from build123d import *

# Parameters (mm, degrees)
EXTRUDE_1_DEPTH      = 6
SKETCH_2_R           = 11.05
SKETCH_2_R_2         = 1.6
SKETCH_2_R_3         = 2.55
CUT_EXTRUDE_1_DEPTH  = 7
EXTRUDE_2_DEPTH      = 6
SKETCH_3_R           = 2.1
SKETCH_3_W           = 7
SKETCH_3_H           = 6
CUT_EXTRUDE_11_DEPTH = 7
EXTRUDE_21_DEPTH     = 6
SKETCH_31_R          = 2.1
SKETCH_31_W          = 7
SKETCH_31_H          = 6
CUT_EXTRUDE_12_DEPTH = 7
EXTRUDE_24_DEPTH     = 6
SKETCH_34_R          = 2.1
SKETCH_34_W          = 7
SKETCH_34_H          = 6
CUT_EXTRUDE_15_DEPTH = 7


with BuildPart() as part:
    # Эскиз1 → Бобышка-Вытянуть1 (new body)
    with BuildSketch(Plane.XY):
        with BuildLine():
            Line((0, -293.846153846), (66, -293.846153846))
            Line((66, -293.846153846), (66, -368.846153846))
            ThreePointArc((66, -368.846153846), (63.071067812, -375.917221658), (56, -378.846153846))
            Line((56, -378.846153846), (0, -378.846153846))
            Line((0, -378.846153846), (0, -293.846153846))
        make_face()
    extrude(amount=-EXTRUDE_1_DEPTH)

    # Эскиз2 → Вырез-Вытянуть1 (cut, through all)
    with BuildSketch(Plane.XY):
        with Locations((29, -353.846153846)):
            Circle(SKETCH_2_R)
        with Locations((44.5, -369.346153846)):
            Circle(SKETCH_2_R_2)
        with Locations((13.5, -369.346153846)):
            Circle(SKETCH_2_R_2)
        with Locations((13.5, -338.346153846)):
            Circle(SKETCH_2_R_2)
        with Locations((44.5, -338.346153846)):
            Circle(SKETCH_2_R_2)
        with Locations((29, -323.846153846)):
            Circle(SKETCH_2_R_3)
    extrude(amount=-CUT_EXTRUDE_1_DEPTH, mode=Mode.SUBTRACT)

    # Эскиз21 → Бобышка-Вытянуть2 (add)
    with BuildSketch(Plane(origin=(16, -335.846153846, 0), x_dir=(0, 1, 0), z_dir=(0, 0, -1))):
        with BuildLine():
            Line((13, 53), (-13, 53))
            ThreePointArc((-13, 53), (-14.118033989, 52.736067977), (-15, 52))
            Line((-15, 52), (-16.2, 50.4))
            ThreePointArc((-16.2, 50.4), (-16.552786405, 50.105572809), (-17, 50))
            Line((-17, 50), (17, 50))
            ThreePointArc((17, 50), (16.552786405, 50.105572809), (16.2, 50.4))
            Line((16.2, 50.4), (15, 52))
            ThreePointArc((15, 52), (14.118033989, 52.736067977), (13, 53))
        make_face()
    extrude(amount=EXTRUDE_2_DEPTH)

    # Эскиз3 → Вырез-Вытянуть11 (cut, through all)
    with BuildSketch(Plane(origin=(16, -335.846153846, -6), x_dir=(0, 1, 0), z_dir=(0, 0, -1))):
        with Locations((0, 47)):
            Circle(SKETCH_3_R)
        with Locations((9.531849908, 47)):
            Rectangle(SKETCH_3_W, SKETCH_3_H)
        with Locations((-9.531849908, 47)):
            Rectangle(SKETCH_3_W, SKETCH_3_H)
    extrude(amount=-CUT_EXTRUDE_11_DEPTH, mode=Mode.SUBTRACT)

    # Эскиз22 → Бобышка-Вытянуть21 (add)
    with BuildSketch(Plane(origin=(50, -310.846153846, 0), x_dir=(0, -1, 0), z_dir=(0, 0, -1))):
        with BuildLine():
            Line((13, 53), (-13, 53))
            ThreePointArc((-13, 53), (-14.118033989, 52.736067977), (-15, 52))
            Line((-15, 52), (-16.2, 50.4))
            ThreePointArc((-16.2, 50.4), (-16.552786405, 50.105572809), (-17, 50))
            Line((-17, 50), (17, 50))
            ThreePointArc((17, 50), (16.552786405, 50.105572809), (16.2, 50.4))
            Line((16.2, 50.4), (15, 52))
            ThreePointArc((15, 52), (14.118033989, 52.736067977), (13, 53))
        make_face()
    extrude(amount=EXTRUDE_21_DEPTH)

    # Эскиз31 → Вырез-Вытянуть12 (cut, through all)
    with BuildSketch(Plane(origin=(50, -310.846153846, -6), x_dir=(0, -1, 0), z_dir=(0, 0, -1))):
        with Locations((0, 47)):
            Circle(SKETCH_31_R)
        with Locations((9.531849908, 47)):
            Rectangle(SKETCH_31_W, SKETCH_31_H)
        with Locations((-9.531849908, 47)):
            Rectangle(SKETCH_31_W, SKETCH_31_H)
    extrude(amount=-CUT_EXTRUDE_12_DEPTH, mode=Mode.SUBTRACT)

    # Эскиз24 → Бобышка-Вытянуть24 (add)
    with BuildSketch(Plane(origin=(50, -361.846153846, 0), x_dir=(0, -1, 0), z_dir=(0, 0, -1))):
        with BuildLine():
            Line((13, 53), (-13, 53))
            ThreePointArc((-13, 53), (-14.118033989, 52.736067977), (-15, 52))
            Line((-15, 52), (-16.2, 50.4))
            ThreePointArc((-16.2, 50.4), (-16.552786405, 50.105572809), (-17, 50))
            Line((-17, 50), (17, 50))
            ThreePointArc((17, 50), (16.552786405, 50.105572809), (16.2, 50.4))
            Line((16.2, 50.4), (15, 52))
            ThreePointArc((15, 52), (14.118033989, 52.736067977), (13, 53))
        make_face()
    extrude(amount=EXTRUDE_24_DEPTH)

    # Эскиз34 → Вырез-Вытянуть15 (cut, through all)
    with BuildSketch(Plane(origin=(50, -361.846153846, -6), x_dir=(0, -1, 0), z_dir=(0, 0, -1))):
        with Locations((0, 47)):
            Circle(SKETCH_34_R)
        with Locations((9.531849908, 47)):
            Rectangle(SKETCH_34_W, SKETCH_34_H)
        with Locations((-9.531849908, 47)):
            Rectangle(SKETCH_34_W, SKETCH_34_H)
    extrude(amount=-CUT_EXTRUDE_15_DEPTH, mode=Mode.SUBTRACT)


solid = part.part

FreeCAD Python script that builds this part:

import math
import FreeCAD as App
import Part
import Sketcher

V = App.Vector

doc = App.newDocument("Part")
body = doc.addObject("PartDesign::Body", "Body")

sketch1 = doc.addObject("Sketcher::SketchObject", "Sketch")
body.addObject(sketch1)
sketch1.AttachmentSupport = (doc.XY_Plane, [""])
sketch1.MapMode = "FlatFace"
sketch1.addGeometry([
    Part.LineSegment(V(66, -294, 0), V(0, -294, 0)),
    Part.LineSegment(V(0, -294, 0), V(0, -379, 0)),
    Part.LineSegment(V(0, -379, 0), V(56, -379, 0)),
    Part.ArcOfCircle(Part.Circle(V(56, -369, 0), V(0, 0, 1), 10), math.radians(-90), math.radians(0)),
    Part.LineSegment(V(66, -369, 0), V(66, -294, 0)),
], False)
sketch1.addConstraint([
    Sketcher.Constraint("Coincident", 0, 2, 1, 1),
    Sketcher.Constraint("Coincident", 1, 2, 2, 1),
    Sketcher.Constraint("Tangent", 2, 2, 3, 1),
    Sketcher.Constraint("Tangent", 3, 2, 4, 1),
    Sketcher.Constraint("Coincident", 4, 2, 0, 1),
    Sketcher.Constraint("Horizontal", 0),
    Sketcher.Constraint("Vertical", 1),
    Sketcher.Constraint("Horizontal", 2),
    Sketcher.Constraint("Vertical", 4),
    Sketcher.Constraint("PointOnObject", 0, 2, -2),
    Sketcher.Constraint("Radius", 3, 10.0),
    Sketcher.Constraint("DistanceX", 0, 2, 0, 1, 66.0),
    Sketcher.Constraint("DistanceY", 1, 2, 1, 1, 85.0),
    Sketcher.Constraint("DistanceY", 3, 3, -1, 1, 368.846154),
])
pad1 = doc.addObject("PartDesign::Pad", "Pad")
body.addObject(pad1)
pad1.Profile = sketch1
pad1.Length = 6
pad1.Reversed = True

sketch2 = doc.addObject("Sketcher::SketchObject", "Sketch001")
body.addObject(sketch2)
sketch2.AttachmentSupport = (doc.XY_Plane, [""])
sketch2.MapMode = "FlatFace"
sketch2.addGeometry([
    Part.Circle(V(29, -353.8, 0), V(0, 0, 1), 11.1),
    Part.Circle(V(44.5, -369.3, 0), V(0, 0, 1), 1.6),
    Part.Circle(V(13.5, -369.3, 0), V(0, 0, 1), 1.6),
    Part.Circle(V(13.5, -338.3, 0), V(0, 0, 1), 1.6),
    Part.Circle(V(44.5, -338.3, 0), V(0, 0, 1), 1.6),
    Part.Circle(V(29, -323.8, 0), V(0, 0, 1), 2.5),
], False)
sketch2.addConstraint([
    Sketcher.Constraint("Equal", 1, 2),
    Sketcher.Constraint("Equal", 2, 3),
    Sketcher.Constraint("Equal", 3, 4),
    Sketcher.Constraint("Horizontal", 1, 3, 2, 3),
    Sketcher.Constraint("Horizontal", 3, 3, 4, 3),
    Sketcher.Constraint("Vertical", 2, 3, 3, 3),
    Sketcher.Constraint("Vertical", 1, 3, 4, 3),
    Sketcher.Constraint("Vertical", 0, 3, 5, 3),
    Sketcher.Constraint("Diameter", 0, 22.1),
    Sketcher.Constraint("Diameter", 1, 3.2),
    Sketcher.Constraint("Diameter", 5, 5.1),
    Sketcher.Constraint("DistanceX", -1, 1, 0, 3, 29.0),
    Sketcher.Constraint("DistanceX", 2, 3, 1, 3, 31.0),
    Sketcher.Constraint("DistanceY", 2, 3, 3, 3, 31.0),
    Sketcher.Constraint("DistanceY", 0, 3, 5, 3, 30.0),
    Sketcher.Constraint("DistanceX", -1, 1, 1, 3, 44.5),
    Sketcher.Constraint("DistanceY", 1, 3, 0, 3, 15.5),
    Sketcher.Constraint("DistanceY", 0, 3, -1, 1, 353.846154),
])
pocket1 = doc.addObject("PartDesign::Pocket", "Pocket")
body.addObject(pocket1)
pocket1.Profile = sketch2
pocket1.Type = "ThroughAll"

sketch3 = doc.addObject("Sketcher::SketchObject", "Sketch002")
body.addObject(sketch3)
sketch3.AttachmentSupport = (doc.XY_Plane, [""])
sketch3.MapMode = "FlatFace"
sketch3.addGeometry([
    Part.LineSegment(V(69, -322.8, 0), V(69, -348.8, 0)),
    Part.ArcOfCircle(Part.Circle(V(66.5, -348.8, 0), V(0, 0, 1), 2.5), math.radians(-53), math.radians(0)),
    Part.LineSegment(V(68, -350.8, 0), V(66.4, -352, 0)),
    Part.ArcOfCircle(Part.Circle(V(67, -352.8, 0), V(0, 0, 1), 1), math.radians(127), math.radians(180)),
    Part.LineSegment(V(66, -352.8, 0), V(66, -318.8, 0)),
    Part.ArcOfCircle(Part.Circle(V(67, -318.8, 0), V(0, 0, 1), 1), math.radians(-180), math.radians(-127)),
    Part.LineSegment(V(66.4, -319.6, 0), V(68, -320.8, 0)),
    Part.ArcOfCircle(Part.Circle(V(66.5, -322.8, 0), V(0, 0, 1), 2.5), math.radians(0), math.radians(53)),
], False)
sketch3.addConstraint([
    Sketcher.Constraint("Tangent", 0, 2, 1, 2),
    Sketcher.Constraint("Tangent", 1, 1, 2, 1),
    Sketcher.Constraint("Tangent", 2, 2, 3, 1),
    Sketcher.Constraint("Tangent", 3, 2, 4, 1),
    Sketcher.Constraint("Tangent", 4, 2, 5, 1),
    Sketcher.Constraint("Tangent", 5, 2, 6, 1),
    Sketcher.Constraint("Tangent", 6, 2, 7, 2),
    Sketcher.Constraint("Tangent", 7, 1, 0, 1),
    Sketcher.Constraint("Vertical", 0),
    Sketcher.Constraint("Vertical", 4),
    Sketcher.Constraint("Equal", 3, 5),
    Sketcher.Constraint("Equal", 1, 7),
    Sketcher.Constraint("Vertical", 2, 2, 5, 2),
    Sketcher.Constraint("Radius", 3, 1.0),
    Sketcher.Constraint("Radius", 1, 2.5),
    Sketcher.Constraint("DistanceY", 0, 2, 0, 1, 26.0),
    Sketcher.Constraint("DistanceY", 4, 1, 4, 2, 34.0),
    Sketcher.Constraint("Distance", 2, 2.0),
    Sketcher.Constraint("DistanceX", -1, 1, 3, 3, 67.0),
    Sketcher.Constraint("DistanceY", 1, 3, -1, 1, 348.846154),
])
pad2 = doc.addObject("PartDesign::Pad", "Pad001")
body.addObject(pad2)
pad2.Profile = sketch3
pad2.Length = 6
pad2.Reversed = True

sketch4 = doc.addObject("Sketcher::SketchObject", "Sketch003")
body.addObject(sketch4)
sketch4.AttachmentSupport = (doc.XY_Plane, [""])
sketch4.MapMode = "FlatFace"
sketch4.AttachmentOffset = App.Placement(V(0, 0, -6), App.Rotation())
sketch4.addGeometry([
    Part.Circle(V(63, -335.8, 0), V(0, 0, 1), 2.1),
    Part.LineSegment(V(66, -329.8, 0), V(60, -329.8, 0)),
    Part.LineSegment(V(60, -329.8, 0), V(60, -322.8, 0)),
    Part.LineSegment(V(60, -322.8, 0), V(66, -322.8, 0)),
    Part.LineSegment(V(66, -322.8, 0), V(66, -329.8, 0)),
    Part.LineSegment(V(66, -348.9, 0), V(60, -348.9, 0)),
    Part.LineSegment(V(60, -348.9, 0), V(60, -341.9, 0)),
    Part.LineSegment(V(60, -341.9, 0), V(66, -341.9, 0)),
    Part.LineSegment(V(66, -341.9, 0), V(66, -348.9, 0)),
], False)
sketch4.addConstraint([
    Sketcher.Constraint("Coincident", 1, 2, 2, 1),
    Sketcher.Constraint("Coincident", 2, 2, 3, 1),
    Sketcher.Constraint("Coincident", 3, 2, 4, 1),
    Sketcher.Constraint("Coincident", 4, 2, 1, 1),
    Sketcher.Constraint("Coincident", 5, 2, 6, 1),
    Sketcher.Constraint("Coincident", 6, 2, 7, 1),
    Sketcher.Constraint("Coincident", 7, 2, 8, 1),
    Sketcher.Constraint("Coincident", 8, 2, 5, 1),
    Sketcher.Constraint("Horizontal", 1),
    Sketcher.Constraint("Vertical", 2),
    Sketcher.Constraint("Horizontal", 3),
    Sketcher.Constraint("Vertical", 4),
    Sketcher.Constraint("Horizontal", 5),
    Sketcher.Constraint("Vertical", 6),
    Sketcher.Constraint("Horizontal", 7),
    Sketcher.Constraint("Vertical", 8),
    Sketcher.Constraint("Vertical", 2, 2, 5, 2),
    Sketcher.Constraint("Vertical", 4, 2, 7, 2),
    Sketcher.Constraint("Equal", 4, 6),
    Sketcher.Constraint("Diameter", 0, 4.2),
    Sketcher.Constraint("DistanceX", 1, 2, 1, 1, 6.0),
    Sketcher.Constraint("DistanceY", 2, 1, 2, 2, 7.0),
    Sketcher.Constraint("DistanceX", -1, 1, 0, 3, 63.0),
    Sketcher.Constraint("DistanceX", -1, 1, 1, 2, 60.0),
    Sketcher.Constraint("DistanceY", 5, 2, 1, 2, 19.0637),
    Sketcher.Constraint("DistanceY", 0, 3, 1, 2, 6.03185),
    Sketcher.Constraint("DistanceY", 0, 3, -1, 1, 335.846154),
])
pocket2 = doc.addObject("PartDesign::Pocket", "Pocket001")
body.addObject(pocket2)
pocket2.Profile = sketch4
pocket2.Type = "ThroughAll"
pocket2.Reversed = True

sketch5 = doc.addObject("Sketcher::SketchObject", "Sketch004")
body.addObject(sketch5)
sketch5.AttachmentSupport = (doc.XY_Plane, [""])
sketch5.MapMode = "FlatFace"
sketch5.addGeometry([
    Part.LineSegment(V(-3, -323.8, 0), V(-3, -297.8, 0)),
    Part.ArcOfCircle(Part.Circle(V(-0.5, -297.8, 0), V(0, 0, 1), 2.5), math.radians(127), math.radians(180)),
    Part.LineSegment(V(-2, -295.8, 0), V(-0.4, -294.6, 0)),
    Part.ArcOfCircle(Part.Circle(V(-1, -293.8, 0), V(0, 0, 1), 1), math.radians(-53), math.radians(0)),
    Part.LineSegment(V(0, -293.8, 0), V(0, -327.8, 0)),
    Part.ArcOfCircle(Part.Circle(V(-1, -327.8, 0), V(0, 0, 1), 1), math.radians(0), math.radians(53)),
    Part.LineSegment(V(-0.4, -327, 0), V(-2, -325.8, 0)),
    Part.ArcOfCircle(Part.Circle(V(-0.5, -323.8, 0), V(0, 0, 1), 2.5), math.radians(-180), math.radians(-127)),
], False)
sketch5.addConstraint([
    Sketcher.Constraint("Tangent", 0, 2, 1, 2),
    Sketcher.Constraint("Tangent", 1, 1, 2, 1),
    Sketcher.Constraint("Tangent", 2, 2, 3, 1),
    Sketcher.Constraint("Tangent", 3, 2, 4, 1),
    Sketcher.Constraint("Tangent", 4, 2, 5, 1),
    Sketcher.Constraint("Tangent", 5, 2, 6, 1),
    Sketcher.Constraint("Tangent", 6, 2, 7, 2),
    Sketcher.Constraint("Tangent", 7, 1, 0, 1),
    Sketcher.Constraint("Vertical", 0),
    Sketcher.Constraint("Vertical", 4),
    Sketcher.Constraint("Equal", 3, 5),
    Sketcher.Constraint("Equal", 1, 7),
    Sketcher.Constraint("PointOnObject", 3, 2, -2),
    Sketcher.Constraint("Vertical", 2, 2, 5, 2),
    Sketcher.Constraint("Radius", 3, 1.0),
    Sketcher.Constraint("Radius", 1, 2.5),
    Sketcher.Constraint("DistanceY", 0, 1, 0, 2, 26.0),
    Sketcher.Constraint("DistanceY", 4, 2, 4, 1, 34.0),
    Sketcher.Constraint("Distance", 2, 2.0),
    Sketcher.Constraint("DistanceY", 1, 3, -1, 1, 297.846154),
])
pad3 = doc.addObject("PartDesign::Pad", "Pad002")
body.addObject(pad3)
pad3.Profile = sketch5
pad3.Length = 6
pad3.Reversed = True

sketch6 = doc.addObject("Sketcher::SketchObject", "Sketch005")
body.addObject(sketch6)
sketch6.AttachmentSupport = (doc.XY_Plane, [""])
sketch6.MapMode = "FlatFace"
sketch6.AttachmentOffset = App.Placement(V(0, 0, -6), App.Rotation())
sketch6.addGeometry([
    Part.Circle(V(3, -310.8, 0), V(0, 0, 1), 2.1),
    Part.LineSegment(V(0, -316.9, 0), V(6, -316.9, 0)),
    Part.LineSegment(V(6, -316.9, 0), V(6, -323.9, 0)),
    Part.LineSegment(V(6, -323.9, 0), V(0, -323.9, 0)),
    Part.LineSegment(V(0, -323.9, 0), V(0, -316.9, 0)),
    Part.LineSegment(V(0, -297.8, 0), V(6, -297.8, 0)),
    Part.LineSegment(V(6, -297.8, 0), V(6, -304.8, 0)),
    Part.LineSegment(V(6, -304.8, 0), V(0, -304.8, 0)),
    Part.LineSegment(V(0, -304.8, 0), V(0, -297.8, 0)),
], False)
sketch6.addConstraint([
    Sketcher.Constraint("Coincident", 1, 2, 2, 1),
    Sketcher.Constraint("Coincident", 2, 2, 3, 1),
    Sketcher.Constraint("Coincident", 3, 2, 4, 1),
    Sketcher.Constraint("Coincident", 4, 2, 1, 1),
    Sketcher.Constraint("Coincident", 5, 2, 6, 1),
    Sketcher.Constraint("Coincident", 6, 2, 7, 1),
    Sketcher.Constraint("Coincident", 7, 2, 8, 1),
    Sketcher.Constraint("Coincident", 8, 2, 5, 1),
    Sketcher.Constraint("Horizontal", 1),
    Sketcher.Constraint("Vertical", 2),
    Sketcher.Constraint("Horizontal", 3),
    Sketcher.Constraint("Vertical", 4),
    Sketcher.Constraint("Horizontal", 5),
    Sketcher.Constraint("Vertical", 6),
    Sketcher.Constraint("Horizontal", 7),
    Sketcher.Constraint("Vertical", 8),
    Sketcher.Constraint("PointOnObject", 3, 2, -2),
    Sketcher.Constraint("PointOnObject", 7, 2, -2),
    Sketcher.Constraint("Vertical", 2, 2, 5, 2),
    Sketcher.Constraint("Equal", 4, 6),
    Sketcher.Constraint("Diameter", 0, 4.2),
    Sketcher.Constraint("DistanceX", 1, 1, 1, 2, 6.0),
    Sketcher.Constraint("DistanceY", 2, 2, 2, 1, 7.0),
    Sketcher.Constraint("DistanceX", -1, 1, 0, 3, 3.0),
    Sketcher.Constraint("DistanceY", 1, 2, 5, 2, 19.0637),
    Sketcher.Constraint("DistanceY", 1, 2, 0, 3, 6.03185),
    Sketcher.Constraint("DistanceY", 0, 3, -1, 1, 310.846154),
])
pocket3 = doc.addObject("PartDesign::Pocket", "Pocket002")
body.addObject(pocket3)
pocket3.Profile = sketch6
pocket3.Type = "ThroughAll"
pocket3.Reversed = True

sketch7 = doc.addObject("Sketcher::SketchObject", "Sketch006")
body.addObject(sketch7)
sketch7.AttachmentSupport = (doc.XY_Plane, [""])
sketch7.MapMode = "FlatFace"
sketch7.addGeometry([
    Part.LineSegment(V(-3, -374.8, 0), V(-3, -348.8, 0)),
    Part.ArcOfCircle(Part.Circle(V(-0.5, -348.8, 0), V(0, 0, 1), 2.5), math.radians(127), math.radians(180)),
    Part.LineSegment(V(-2, -346.8, 0), V(-0.4, -345.6, 0)),
    Part.ArcOfCircle(Part.Circle(V(-1, -344.8, 0), V(0, 0, 1), 1), math.radians(-53), math.radians(0)),
    Part.LineSegment(V(0, -344.8, 0), V(0, -378.8, 0)),
    Part.ArcOfCircle(Part.Circle(V(-1, -378.8, 0), V(0, 0, 1), 1), math.radians(0), math.radians(53)),
    Part.LineSegment(V(-0.4, -378, 0), V(-2, -376.8, 0)),
    Part.ArcOfCircle(Part.Circle(V(-0.5, -374.8, 0), V(0, 0, 1), 2.5), math.radians(-180), math.radians(-127)),
], False)
sketch7.addConstraint([
    Sketcher.Constraint("Tangent", 0, 2, 1, 2),
    Sketcher.Constraint("Tangent", 1, 1, 2, 1),
    Sketcher.Constraint("Tangent", 2, 2, 3, 1),
    Sketcher.Constraint("Tangent", 3, 2, 4, 1),
    Sketcher.Constraint("Tangent", 4, 2, 5, 1),
    Sketcher.Constraint("Tangent", 5, 2, 6, 1),
    Sketcher.Constraint("Tangent", 6, 2, 7, 2),
    Sketcher.Constraint("Tangent", 7, 1, 0, 1),
    Sketcher.Constraint("Vertical", 0),
    Sketcher.Constraint("Vertical", 4),
    Sketcher.Constraint("Equal", 3, 5),
    Sketcher.Constraint("Equal", 1, 7),
    Sketcher.Constraint("PointOnObject", 3, 2, -2),
    Sketcher.Constraint("Vertical", 2, 2, 5, 2),
    Sketcher.Constraint("Radius", 3, 1.0),
    Sketcher.Constraint("Radius", 1, 2.5),
    Sketcher.Constraint("DistanceY", 0, 1, 0, 2, 26.0),
    Sketcher.Constraint("DistanceY", 4, 2, 4, 1, 34.0),
    Sketcher.Constraint("Distance", 2, 2.0),
    Sketcher.Constraint("DistanceY", 1, 3, -1, 1, 348.846154),
])
pad4 = doc.addObject("PartDesign::Pad", "Pad003")
body.addObject(pad4)
pad4.Profile = sketch7
pad4.Length = 6
pad4.Reversed = True

sketch8 = doc.addObject("Sketcher::SketchObject", "Sketch007")
body.addObject(sketch8)
sketch8.AttachmentSupport = (doc.XY_Plane, [""])
sketch8.MapMode = "FlatFace"
sketch8.AttachmentOffset = App.Placement(V(0, 0, -6), App.Rotation())
sketch8.addGeometry([
    Part.Circle(V(3, -361.8, 0), V(0, 0, 1), 2.1),
    Part.LineSegment(V(0, -367.9, 0), V(6, -367.9, 0)),
    Part.LineSegment(V(6, -367.9, 0), V(6, -374.9, 0)),
    Part.LineSegment(V(6, -374.9, 0), V(0, -374.9, 0)),
    Part.LineSegment(V(0, -374.9, 0), V(0, -367.9, 0)),
    Part.LineSegment(V(0, -348.8, 0), V(6, -348.8, 0)),
    Part.LineSegment(V(6, -348.8, 0), V(6, -355.8, 0)),
    Part.LineSegment(V(6, -355.8, 0), V(0, -355.8, 0)),
    Part.LineSegment(V(0, -355.8, 0), V(0, -348.8, 0)),
], False)
sketch8.addConstraint([
    Sketcher.Constraint("Coincident", 1, 2, 2, 1),
    Sketcher.Constraint("Coincident", 2, 2, 3, 1),
    Sketcher.Constraint("Coincident", 3, 2, 4, 1),
    Sketcher.Constraint("Coincident", 4, 2, 1, 1),
    Sketcher.Constraint("Coincident", 5, 2, 6, 1),
    Sketcher.Constraint("Coincident", 6, 2, 7, 1),
    Sketcher.Constraint("Coincident", 7, 2, 8, 1),
    Sketcher.Constraint("Coincident", 8, 2, 5, 1),
    Sketcher.Constraint("Horizontal", 1),
    Sketcher.Constraint("Vertical", 2),
    Sketcher.Constraint("Horizontal", 3),
    Sketcher.Constraint("Vertical", 4),
    Sketcher.Constraint("Horizontal", 5),
    Sketcher.Constraint("Vertical", 6),
    Sketcher.Constraint("Horizontal", 7),
    Sketcher.Constraint("Vertical", 8),
    Sketcher.Constraint("PointOnObject", 3, 2, -2),
    Sketcher.Constraint("PointOnObject", 7, 2, -2),
    Sketcher.Constraint("Vertical", 2, 2, 5, 2),
    Sketcher.Constraint("Equal", 4, 6),
    Sketcher.Constraint("Diameter", 0, 4.2),
    Sketcher.Constraint("DistanceX", 1, 1, 1, 2, 6.0),
    Sketcher.Constraint("DistanceY", 2, 2, 2, 1, 7.0),
    Sketcher.Constraint("DistanceX", -1, 1, 0, 3, 3.0),
    Sketcher.Constraint("DistanceY", 1, 2, 5, 2, 19.0637),
    Sketcher.Constraint("DistanceY", 1, 2, 0, 3, 6.03185),
    Sketcher.Constraint("DistanceY", 0, 3, -1, 1, 361.846154),
])
pocket4 = doc.addObject("PartDesign::Pocket", "Pocket003")
body.addObject(pocket4)
pocket4.Profile = sketch8
pocket4.Type = "ThroughAll"
pocket4.Reversed = True

doc.recompute()
